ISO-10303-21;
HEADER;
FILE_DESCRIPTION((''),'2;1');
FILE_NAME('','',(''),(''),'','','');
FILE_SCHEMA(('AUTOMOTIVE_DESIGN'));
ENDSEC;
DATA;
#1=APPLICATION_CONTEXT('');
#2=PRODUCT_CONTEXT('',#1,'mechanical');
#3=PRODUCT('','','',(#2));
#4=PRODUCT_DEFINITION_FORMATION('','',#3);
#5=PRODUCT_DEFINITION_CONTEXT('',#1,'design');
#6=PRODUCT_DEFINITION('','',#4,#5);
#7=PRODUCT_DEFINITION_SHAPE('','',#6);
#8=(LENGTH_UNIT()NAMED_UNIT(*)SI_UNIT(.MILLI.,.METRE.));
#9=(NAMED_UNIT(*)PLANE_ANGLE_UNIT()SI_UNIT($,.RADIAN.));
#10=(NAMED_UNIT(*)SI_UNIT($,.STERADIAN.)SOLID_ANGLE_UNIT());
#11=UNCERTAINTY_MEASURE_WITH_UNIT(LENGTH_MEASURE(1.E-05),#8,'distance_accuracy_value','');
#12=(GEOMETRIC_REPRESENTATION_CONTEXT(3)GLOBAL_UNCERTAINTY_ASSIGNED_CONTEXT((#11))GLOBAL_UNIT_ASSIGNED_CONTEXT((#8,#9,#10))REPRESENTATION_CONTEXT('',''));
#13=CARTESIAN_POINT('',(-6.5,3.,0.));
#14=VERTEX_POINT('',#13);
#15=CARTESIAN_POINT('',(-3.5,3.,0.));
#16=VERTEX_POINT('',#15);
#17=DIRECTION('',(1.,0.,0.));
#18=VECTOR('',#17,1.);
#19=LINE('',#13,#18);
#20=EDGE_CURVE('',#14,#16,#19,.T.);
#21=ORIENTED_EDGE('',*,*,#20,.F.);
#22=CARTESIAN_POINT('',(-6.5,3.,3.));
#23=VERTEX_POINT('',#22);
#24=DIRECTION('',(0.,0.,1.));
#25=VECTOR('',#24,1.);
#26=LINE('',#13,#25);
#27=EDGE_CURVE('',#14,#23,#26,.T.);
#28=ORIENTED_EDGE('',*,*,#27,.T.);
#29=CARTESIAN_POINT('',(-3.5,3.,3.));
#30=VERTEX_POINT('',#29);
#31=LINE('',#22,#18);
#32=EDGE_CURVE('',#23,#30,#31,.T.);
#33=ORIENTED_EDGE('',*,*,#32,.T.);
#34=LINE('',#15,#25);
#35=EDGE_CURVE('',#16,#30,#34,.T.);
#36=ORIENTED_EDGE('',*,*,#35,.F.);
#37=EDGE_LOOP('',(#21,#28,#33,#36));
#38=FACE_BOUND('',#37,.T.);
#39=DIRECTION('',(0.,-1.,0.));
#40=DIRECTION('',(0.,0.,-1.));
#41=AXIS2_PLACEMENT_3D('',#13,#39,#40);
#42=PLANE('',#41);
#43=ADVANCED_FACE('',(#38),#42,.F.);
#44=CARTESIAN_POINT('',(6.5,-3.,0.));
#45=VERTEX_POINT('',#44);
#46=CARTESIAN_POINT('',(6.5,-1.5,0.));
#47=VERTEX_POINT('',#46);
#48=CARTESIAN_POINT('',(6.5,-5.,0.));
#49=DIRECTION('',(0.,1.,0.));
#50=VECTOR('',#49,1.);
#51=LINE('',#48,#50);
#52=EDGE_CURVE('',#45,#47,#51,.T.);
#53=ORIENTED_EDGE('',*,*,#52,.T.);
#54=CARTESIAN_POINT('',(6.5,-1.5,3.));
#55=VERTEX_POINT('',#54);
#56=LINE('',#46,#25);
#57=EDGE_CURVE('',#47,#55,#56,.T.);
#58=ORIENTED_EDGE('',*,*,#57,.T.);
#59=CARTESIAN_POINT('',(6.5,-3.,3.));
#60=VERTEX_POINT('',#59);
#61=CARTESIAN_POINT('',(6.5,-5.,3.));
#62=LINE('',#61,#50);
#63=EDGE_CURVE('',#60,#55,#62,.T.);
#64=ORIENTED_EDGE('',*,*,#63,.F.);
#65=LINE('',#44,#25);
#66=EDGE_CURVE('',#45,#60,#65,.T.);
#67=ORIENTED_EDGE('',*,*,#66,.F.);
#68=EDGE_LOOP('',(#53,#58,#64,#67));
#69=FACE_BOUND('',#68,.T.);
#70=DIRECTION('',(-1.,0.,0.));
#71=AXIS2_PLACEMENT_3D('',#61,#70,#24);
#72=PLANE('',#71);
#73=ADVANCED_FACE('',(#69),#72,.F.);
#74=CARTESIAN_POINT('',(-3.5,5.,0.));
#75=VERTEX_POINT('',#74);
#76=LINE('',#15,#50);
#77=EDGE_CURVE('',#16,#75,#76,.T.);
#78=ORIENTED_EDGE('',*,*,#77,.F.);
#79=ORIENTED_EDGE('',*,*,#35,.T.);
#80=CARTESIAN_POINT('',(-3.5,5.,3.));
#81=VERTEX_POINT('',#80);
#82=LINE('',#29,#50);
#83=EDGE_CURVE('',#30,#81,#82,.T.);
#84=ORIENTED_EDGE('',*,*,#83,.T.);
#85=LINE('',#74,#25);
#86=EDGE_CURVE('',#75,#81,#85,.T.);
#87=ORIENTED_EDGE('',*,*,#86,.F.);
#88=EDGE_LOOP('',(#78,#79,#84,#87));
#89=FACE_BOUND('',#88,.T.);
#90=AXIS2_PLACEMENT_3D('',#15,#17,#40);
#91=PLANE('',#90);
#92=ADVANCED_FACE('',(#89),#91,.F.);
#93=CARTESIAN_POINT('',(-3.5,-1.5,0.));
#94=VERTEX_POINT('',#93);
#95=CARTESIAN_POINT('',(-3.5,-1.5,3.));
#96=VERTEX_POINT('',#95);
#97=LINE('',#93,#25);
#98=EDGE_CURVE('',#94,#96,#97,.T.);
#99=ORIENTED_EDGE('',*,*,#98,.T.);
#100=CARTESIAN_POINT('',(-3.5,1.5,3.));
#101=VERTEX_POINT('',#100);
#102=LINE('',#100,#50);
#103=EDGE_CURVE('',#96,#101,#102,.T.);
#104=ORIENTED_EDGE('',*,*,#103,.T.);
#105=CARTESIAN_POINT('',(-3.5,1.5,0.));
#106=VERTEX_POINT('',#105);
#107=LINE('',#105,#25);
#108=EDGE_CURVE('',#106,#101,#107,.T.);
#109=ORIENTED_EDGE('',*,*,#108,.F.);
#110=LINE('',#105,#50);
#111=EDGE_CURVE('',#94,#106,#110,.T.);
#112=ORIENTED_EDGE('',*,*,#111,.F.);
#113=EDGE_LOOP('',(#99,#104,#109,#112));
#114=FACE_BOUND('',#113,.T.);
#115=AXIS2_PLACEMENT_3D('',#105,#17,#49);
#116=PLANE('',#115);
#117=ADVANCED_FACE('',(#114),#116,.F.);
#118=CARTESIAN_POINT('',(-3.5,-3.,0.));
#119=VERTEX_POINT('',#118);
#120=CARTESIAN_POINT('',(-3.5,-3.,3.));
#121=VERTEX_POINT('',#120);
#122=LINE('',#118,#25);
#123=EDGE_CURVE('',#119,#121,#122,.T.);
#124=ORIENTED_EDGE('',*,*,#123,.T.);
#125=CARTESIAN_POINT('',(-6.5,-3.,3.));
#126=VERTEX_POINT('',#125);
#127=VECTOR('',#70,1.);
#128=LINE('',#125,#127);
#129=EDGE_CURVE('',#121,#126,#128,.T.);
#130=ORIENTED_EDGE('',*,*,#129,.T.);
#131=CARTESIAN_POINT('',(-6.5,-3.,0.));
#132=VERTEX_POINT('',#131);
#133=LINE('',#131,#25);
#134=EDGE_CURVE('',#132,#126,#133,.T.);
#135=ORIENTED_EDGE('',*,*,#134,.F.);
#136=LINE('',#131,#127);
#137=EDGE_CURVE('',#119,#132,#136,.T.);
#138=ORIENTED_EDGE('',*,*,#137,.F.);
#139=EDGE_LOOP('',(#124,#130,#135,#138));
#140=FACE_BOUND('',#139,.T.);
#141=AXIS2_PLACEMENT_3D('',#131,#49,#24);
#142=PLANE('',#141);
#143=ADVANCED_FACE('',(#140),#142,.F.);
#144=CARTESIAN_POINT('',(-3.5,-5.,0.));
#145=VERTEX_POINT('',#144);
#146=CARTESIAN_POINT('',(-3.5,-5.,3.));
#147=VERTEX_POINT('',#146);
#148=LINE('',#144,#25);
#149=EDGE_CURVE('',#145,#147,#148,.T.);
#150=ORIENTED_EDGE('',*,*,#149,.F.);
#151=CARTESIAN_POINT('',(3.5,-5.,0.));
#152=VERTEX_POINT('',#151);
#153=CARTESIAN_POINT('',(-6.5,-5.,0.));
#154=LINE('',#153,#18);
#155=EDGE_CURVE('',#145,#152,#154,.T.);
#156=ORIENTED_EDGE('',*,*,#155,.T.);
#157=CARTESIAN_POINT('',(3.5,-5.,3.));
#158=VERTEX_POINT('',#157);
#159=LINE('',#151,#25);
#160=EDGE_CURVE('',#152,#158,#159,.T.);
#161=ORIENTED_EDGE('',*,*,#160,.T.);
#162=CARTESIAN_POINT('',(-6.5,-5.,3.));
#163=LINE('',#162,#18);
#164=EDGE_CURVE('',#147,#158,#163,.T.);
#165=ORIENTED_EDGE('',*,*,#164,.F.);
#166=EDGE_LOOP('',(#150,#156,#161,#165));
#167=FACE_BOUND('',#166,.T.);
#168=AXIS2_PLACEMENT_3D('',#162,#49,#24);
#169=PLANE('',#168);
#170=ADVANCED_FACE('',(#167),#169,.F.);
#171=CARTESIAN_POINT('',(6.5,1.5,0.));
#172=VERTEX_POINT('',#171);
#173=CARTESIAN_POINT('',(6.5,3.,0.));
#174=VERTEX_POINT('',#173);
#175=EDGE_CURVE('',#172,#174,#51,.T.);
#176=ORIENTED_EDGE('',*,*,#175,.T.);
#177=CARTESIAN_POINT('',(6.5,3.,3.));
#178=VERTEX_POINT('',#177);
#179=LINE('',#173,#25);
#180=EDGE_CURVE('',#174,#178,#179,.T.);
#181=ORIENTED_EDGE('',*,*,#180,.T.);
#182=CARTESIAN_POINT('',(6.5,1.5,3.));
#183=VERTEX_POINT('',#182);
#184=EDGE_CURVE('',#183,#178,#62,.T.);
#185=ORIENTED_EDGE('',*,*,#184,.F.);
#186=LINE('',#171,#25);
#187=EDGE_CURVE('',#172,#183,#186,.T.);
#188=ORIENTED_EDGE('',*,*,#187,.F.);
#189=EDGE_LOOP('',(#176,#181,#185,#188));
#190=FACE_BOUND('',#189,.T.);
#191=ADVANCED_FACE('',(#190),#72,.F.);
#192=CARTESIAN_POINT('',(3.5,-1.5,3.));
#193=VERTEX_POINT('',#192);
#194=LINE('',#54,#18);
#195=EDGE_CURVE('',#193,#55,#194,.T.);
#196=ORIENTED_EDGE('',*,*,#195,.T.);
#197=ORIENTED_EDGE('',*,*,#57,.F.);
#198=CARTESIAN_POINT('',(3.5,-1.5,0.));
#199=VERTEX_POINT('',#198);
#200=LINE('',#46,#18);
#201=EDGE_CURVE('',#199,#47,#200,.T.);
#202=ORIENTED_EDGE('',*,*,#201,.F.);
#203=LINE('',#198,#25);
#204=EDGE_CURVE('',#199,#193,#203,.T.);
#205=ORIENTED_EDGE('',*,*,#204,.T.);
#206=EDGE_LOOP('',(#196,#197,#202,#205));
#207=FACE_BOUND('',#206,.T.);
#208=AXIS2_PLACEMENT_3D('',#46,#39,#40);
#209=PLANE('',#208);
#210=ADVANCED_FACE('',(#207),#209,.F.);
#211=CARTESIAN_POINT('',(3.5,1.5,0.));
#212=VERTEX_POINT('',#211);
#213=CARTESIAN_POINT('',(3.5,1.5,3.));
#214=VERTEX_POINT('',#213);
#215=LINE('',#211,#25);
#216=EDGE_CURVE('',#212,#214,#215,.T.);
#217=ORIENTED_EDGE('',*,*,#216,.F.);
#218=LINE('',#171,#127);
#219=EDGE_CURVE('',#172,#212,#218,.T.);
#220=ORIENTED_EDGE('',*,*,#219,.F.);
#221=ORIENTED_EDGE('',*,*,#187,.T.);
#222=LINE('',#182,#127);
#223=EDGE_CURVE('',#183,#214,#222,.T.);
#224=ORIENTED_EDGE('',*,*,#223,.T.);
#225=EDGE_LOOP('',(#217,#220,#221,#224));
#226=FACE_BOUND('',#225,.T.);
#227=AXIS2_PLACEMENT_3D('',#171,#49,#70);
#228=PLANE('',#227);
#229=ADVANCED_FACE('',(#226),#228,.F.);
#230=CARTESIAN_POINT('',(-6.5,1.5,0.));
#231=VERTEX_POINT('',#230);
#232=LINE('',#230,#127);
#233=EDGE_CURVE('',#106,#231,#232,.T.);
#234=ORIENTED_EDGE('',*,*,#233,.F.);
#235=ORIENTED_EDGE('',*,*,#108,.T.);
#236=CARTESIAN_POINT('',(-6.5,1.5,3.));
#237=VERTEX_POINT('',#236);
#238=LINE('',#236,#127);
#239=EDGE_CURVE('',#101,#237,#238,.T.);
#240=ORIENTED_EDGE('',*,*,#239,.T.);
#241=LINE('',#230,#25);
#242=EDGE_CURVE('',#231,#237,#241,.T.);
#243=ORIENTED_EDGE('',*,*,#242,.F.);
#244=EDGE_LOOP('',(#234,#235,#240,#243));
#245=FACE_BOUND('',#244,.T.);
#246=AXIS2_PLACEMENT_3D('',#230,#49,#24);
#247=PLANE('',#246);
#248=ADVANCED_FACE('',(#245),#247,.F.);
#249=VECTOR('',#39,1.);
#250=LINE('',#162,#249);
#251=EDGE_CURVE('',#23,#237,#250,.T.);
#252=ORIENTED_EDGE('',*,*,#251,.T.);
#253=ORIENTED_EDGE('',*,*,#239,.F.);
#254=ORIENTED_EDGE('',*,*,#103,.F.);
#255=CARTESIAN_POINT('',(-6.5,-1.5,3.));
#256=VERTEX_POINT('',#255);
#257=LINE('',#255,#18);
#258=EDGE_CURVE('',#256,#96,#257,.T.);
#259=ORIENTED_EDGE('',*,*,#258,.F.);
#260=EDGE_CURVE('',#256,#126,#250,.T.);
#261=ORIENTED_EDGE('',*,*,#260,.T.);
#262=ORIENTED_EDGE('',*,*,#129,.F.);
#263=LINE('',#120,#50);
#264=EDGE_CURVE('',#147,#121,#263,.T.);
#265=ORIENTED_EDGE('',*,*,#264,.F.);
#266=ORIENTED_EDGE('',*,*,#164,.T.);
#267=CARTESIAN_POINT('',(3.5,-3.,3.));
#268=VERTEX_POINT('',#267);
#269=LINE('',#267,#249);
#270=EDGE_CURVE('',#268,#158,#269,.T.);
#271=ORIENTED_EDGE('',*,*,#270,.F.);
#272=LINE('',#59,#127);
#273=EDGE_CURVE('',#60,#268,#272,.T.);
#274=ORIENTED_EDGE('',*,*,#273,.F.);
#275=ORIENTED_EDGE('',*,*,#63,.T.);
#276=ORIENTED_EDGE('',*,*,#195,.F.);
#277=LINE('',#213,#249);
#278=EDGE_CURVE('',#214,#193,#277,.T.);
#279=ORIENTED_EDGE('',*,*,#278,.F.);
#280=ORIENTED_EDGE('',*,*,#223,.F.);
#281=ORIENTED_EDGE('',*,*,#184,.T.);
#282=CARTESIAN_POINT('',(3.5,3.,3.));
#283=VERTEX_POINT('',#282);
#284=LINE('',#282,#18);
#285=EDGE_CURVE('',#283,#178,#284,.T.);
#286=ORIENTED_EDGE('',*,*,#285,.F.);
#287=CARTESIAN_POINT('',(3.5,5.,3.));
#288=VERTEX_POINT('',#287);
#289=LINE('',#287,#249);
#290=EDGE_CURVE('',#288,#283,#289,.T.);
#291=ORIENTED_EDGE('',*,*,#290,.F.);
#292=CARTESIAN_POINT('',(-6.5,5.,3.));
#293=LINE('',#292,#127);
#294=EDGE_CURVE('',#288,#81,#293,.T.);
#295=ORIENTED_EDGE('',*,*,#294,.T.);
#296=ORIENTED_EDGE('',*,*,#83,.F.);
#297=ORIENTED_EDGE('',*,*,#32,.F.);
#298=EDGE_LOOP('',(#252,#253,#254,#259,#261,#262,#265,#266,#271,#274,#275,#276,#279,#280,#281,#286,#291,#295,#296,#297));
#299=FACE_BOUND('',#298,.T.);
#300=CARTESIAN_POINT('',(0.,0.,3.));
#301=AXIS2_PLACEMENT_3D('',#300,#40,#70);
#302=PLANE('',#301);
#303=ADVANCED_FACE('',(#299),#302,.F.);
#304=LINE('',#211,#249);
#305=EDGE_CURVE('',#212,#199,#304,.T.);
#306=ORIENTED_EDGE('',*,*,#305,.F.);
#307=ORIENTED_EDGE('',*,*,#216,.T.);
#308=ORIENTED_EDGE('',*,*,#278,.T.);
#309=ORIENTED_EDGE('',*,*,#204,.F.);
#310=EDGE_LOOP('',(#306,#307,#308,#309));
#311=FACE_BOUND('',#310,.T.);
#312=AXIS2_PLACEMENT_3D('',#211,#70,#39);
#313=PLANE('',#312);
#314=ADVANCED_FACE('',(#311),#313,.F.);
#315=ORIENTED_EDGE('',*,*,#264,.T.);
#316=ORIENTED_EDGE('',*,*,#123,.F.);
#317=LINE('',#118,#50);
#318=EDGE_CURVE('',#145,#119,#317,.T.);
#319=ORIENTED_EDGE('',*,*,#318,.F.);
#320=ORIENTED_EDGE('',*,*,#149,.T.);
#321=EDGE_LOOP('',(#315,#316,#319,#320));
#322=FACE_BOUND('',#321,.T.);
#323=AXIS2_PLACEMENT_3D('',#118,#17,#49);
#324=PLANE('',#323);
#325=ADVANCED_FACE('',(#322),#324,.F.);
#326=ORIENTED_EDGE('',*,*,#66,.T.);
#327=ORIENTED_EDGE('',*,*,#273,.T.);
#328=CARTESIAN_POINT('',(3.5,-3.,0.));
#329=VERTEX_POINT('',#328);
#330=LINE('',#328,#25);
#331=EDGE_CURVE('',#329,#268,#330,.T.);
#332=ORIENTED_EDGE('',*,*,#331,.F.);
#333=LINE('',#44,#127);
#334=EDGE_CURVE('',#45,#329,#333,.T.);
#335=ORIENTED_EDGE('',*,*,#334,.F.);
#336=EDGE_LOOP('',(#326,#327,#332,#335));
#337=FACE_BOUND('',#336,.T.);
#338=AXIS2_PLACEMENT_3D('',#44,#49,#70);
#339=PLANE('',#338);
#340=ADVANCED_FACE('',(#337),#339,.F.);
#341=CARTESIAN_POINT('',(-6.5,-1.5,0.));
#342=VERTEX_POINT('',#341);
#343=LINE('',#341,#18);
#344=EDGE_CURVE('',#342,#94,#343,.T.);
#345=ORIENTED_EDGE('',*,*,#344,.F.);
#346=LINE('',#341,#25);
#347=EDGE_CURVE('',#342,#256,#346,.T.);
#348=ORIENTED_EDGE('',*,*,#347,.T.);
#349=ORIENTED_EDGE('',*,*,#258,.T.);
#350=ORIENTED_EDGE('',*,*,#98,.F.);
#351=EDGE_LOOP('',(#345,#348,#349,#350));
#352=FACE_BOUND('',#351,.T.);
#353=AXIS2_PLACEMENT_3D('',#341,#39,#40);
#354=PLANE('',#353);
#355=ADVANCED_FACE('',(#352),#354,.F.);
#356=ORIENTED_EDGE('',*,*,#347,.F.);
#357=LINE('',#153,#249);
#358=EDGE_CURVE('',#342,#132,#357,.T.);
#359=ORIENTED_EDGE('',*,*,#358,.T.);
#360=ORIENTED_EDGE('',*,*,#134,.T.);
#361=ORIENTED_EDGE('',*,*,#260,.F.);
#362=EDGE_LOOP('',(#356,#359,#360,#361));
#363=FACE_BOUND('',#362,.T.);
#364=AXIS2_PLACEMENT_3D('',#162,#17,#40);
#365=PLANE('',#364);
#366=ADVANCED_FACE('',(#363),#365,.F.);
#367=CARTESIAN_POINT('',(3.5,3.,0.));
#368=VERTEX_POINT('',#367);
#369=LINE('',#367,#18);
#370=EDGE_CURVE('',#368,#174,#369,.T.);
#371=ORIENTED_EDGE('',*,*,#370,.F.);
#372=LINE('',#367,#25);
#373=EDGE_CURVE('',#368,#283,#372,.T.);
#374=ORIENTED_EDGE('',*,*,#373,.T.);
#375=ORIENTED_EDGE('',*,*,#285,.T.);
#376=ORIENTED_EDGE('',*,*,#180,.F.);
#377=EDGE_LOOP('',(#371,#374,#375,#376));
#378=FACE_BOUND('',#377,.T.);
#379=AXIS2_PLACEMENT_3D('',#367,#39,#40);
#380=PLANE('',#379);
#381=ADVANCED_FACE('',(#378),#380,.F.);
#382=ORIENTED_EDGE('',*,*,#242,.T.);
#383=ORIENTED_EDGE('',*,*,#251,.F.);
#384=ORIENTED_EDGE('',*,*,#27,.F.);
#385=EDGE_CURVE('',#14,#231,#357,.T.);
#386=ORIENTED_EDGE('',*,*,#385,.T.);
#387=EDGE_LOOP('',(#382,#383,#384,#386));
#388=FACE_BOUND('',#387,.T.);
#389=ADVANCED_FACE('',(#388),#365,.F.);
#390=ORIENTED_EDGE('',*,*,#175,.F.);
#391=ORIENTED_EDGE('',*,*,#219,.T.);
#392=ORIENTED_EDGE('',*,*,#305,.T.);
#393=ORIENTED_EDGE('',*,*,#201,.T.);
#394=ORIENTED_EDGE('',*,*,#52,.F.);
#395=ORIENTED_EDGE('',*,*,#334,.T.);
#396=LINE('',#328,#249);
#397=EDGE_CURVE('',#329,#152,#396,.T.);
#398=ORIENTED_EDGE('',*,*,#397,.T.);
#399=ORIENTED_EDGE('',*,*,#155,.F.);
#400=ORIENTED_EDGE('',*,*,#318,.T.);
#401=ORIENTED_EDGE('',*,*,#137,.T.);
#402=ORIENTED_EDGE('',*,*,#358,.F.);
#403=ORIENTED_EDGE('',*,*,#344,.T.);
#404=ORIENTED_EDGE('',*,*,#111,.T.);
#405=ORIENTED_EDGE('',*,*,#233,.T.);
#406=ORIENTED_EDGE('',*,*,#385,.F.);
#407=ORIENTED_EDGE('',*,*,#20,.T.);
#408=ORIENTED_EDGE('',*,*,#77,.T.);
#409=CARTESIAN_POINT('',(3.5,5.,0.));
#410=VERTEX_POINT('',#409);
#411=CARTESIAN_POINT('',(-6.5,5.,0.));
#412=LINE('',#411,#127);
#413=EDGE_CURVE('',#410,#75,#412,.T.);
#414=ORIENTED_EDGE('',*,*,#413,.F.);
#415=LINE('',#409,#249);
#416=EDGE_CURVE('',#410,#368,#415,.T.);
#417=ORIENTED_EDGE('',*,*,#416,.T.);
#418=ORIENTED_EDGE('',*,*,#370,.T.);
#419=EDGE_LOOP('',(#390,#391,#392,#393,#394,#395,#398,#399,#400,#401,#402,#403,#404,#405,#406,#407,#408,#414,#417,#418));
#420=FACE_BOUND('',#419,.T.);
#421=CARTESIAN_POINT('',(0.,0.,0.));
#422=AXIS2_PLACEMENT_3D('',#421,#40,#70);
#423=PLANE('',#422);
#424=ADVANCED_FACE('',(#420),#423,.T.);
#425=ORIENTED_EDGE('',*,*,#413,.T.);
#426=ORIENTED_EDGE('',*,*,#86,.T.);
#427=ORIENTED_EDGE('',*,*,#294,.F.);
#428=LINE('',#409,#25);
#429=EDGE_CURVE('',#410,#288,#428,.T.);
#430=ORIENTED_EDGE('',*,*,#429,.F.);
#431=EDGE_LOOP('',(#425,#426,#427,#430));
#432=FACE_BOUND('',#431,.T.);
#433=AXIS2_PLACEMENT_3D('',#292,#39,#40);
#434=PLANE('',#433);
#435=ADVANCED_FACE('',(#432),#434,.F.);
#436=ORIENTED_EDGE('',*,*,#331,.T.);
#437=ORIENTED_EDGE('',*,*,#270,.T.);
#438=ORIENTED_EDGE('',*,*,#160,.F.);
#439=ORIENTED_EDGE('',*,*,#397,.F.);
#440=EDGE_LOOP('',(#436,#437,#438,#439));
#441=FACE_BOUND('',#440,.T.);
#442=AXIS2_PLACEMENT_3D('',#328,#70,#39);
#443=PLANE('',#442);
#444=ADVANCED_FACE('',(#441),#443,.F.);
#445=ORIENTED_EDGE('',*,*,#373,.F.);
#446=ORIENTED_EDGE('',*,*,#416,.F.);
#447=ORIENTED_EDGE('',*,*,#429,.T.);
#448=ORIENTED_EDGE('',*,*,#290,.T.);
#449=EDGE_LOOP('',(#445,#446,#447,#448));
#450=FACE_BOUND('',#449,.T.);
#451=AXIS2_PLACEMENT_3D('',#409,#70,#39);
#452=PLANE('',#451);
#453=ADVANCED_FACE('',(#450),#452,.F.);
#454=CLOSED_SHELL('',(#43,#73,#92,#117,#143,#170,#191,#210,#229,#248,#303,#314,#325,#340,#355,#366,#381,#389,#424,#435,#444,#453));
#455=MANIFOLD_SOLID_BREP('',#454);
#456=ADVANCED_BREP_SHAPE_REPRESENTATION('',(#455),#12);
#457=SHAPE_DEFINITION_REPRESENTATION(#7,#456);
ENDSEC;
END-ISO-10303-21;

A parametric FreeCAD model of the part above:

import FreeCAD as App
import Part
import Sketcher
from FreeCAD import Vector


def add_polygon(sketch, points):
    """Adds a closed chain of lines whose ends are joined by coincident constraints."""
    first, n = sketch.GeometryCount, len(points)
    for a, b in zip(points, points[1:] + points[:1]):
        sketch.addGeometry(Part.LineSegment(App.Vector(*a, 0), App.Vector(*b, 0)), False)
    for i in range(n):
        sketch.addConstraint(Sketcher.Constraint("Coincident", first + i, 2, first + (i + 1) % n, 1))

doc = App.newDocument("Part")
body = doc.addObject("PartDesign::Body", "Body")

sketch1 = doc.addObject("Sketcher::SketchObject", "Sketch")
body.addObject(sketch1)
sketch1.AttachmentSupport = (doc.XY_Plane, [""])
sketch1.MapMode = "FlatFace"
add_polygon(sketch1, [(-6, 5), (-6, -5), (6, -5), (6, 5)])
sketch1.addConstraint(Sketcher.Constraint("Vertical", 0))
sketch1.addConstraint(Sketcher.Constraint("Horizontal", 1))
sketch1.addConstraint(Sketcher.Constraint("Vertical", 2))
sketch1.addConstraint(Sketcher.Constraint("Horizontal", 3))
sketch1.addConstraint(Sketcher.Constraint("Symmetric", 0, 2, 2, 2, -1, 1))
sketch1.addConstraint(Sketcher.Constraint("DistanceX", 1, 1, 1, 2, 13.0))
sketch1.addConstraint(Sketcher.Constraint("DistanceY", 0, 2, 0, 1, 10.0))
pad1 = doc.addObject("PartDesign::Pad", "Pad")
body.addObject(pad1)
pad1.Profile = sketch1
pad1.Length = 3

sketch2 = doc.addObject("Sketcher::SketchObject", "Sketch001")
body.addObject(sketch2)
sketch2.AttachmentSupport = (doc.XY_Plane, [""])
sketch2.MapMode = "FlatFace"
sketch2.AttachmentOffset = App.Placement(Vector(0, 0, 3), App.Rotation())
add_polygon(sketch2, [(-6.5, 5), (-6.5, 3), (-3.5, 3), (-3.5, 5)])
add_polygon(sketch2, [(-6.5, 1.5), (-6.5, -1.5), (-3.5, -1.5), (-3.5, 1.5)])
add_polygon(sketch2, [(-6.5, -3), (-6.5, -5), (-3.5, -5), (-3.5, -3)])
sketch2.addConstraint(Sketcher.Constraint("Vertical", 0))
sketch2.addConstraint(Sketcher.Constraint("Horizontal", 1))
sketch2.addConstraint(Sketcher.Constraint("Vertical", 2))
sketch2.addConstraint(Sketcher.Constraint("Horizontal", 3))
sketch2.addConstraint(Sketcher.Constraint("Vertical", 4))
sketch2.addConstraint(Sketcher.Constraint("Horizontal", 5))
sketch2.addConstraint(Sketcher.Constraint("Vertical", 6))
sketch2.addConstraint(Sketcher.Constraint("Horizontal", 7))
sketch2.addConstraint(Sketcher.Constraint("Vertical", 8))
sketch2.addConstraint(Sketcher.Constraint("Horizontal", 9))
sketch2.addConstraint(Sketcher.Constraint("Vertical", 10))
sketch2.addConstraint(Sketcher.Constraint("Horizontal", 11))
sketch2.addConstraint(Sketcher.Constraint("Symmetric", 3, 2, 8, 2, -1))
sketch2.addConstraint(Sketcher.Constraint("Symmetric", 1, 2, 10, 2, -1))
sketch2.addConstraint(Sketcher.Constraint("Vertical", 3, 2, 4, 2))
sketch2.addConstraint(Sketcher.Constraint("Vertical", 2, 2, 5, 2))
sketch2.addConstraint(Sketcher.Constraint("Equal", 11, 4))
sketch2.addConstraint(Sketcher.Constraint("DistanceX", 1, 1, 1, 2, 3.0))
sketch2.addConstraint(Sketcher.Constraint("DistanceY", 0, 2, 0, 1, 2.0))
sketch2.addConstraint(Sketcher.Constraint("DistanceY", -1, 1, 0, 2, 3.0))
sketch2.addConstraint(Sketcher.Constraint("DistanceX", 0, 2, -1, 1, 6.5))
sketch2.addConstraint(Sketcher.Constraint("DistanceY", 4, 2, -1, 1, 1.5))
pocket1 = doc.addObject("PartDesign::Pocket", "Pocket")
body.addObject(pocket1)
pocket1.Profile = sketch2
pocket1.Length = 3

sketch3 = doc.addObject("Sketcher::SketchObject", "Sketch002")
body.addObject(sketch3)
sketch3.AttachmentSupport = (doc.XY_Plane, [""])
sketch3.MapMode = "FlatFace"
sketch3.AttachmentOffset = App.Placement(Vector(0, 0, 3), App.Rotation())
add_polygon(sketch3, [(3.5, 5), (3.5, 3), (6.5, 3), (6.5, 5)])
add_polygon(sketch3, [(3.5, 1.5), (3.5, -1.5), (6.5, -1.5), (6.5, 1.5)])
add_polygon(sketch3, [(3.5, -3), (3.5, -5), (6.5, -5), (6.5, -3)])
sketch3.addConstraint(Sketcher.Constraint("Vertical", 0))
sketch3.addConstraint(Sketcher.Constraint("Horizontal", 1))
sketch3.addConstraint(Sketcher.Constraint("Vertical", 2))
sketch3.addConstraint(Sketcher.Constraint("Horizontal", 3))
sketch3.addConstraint(Sketcher.Constraint("Vertical", 4))
sketch3.addConstraint(Sketcher.Constraint("Horizontal", 5))
sketch3.addConstraint(Sketcher.Constraint("Vertical", 6))
sketch3.addConstraint(Sketcher.Constraint("Horizontal", 7))
sketch3.addConstraint(Sketcher.Constraint("Vertical", 8))
sketch3.addConstraint(Sketcher.Constraint("Horizontal", 9))
sketch3.addConstraint(Sketcher.Constraint("Vertical", 10))
sketch3.addConstraint(Sketcher.Constraint("Horizontal", 11))
sketch3.addConstraint(Sketcher.Constraint("Symmetric", 3, 2, 8, 2, -1))
sketch3.addConstraint(Sketcher.Constraint("Symmetric", 1, 2, 10, 2, -1))
sketch3.addConstraint(Sketcher.Constraint("Vertical", 3, 2, 4, 2))
sketch3.addConstraint(Sketcher.Constraint("Vertical", 2, 2, 5, 2))
sketch3.addConstraint(Sketcher.Constraint("Equal", 11, 4))
sketch3.addConstraint(Sketcher.Constraint("DistanceX", 1, 1, 1, 2, 3.0))
sketch3.addConstraint(Sketcher.Constraint("DistanceY", 0, 2, 0, 1, 2.0))
sketch3.addConstraint(Sketcher.Constraint("DistanceY", -1, 1, 0, 2, 3.0))
sketch3.addConstraint(Sketcher.Constraint("DistanceX", -1, 1, 0, 2, 3.5))
sketch3.addConstraint(Sketcher.Constraint("DistanceY", 4, 2, -1, 1, 1.5))
pocket2 = doc.addObject("PartDesign::Pocket", "Pocket001")
body.addObject(pocket2)
pocket2.Profile = sketch3
pocket2.Length = 3

doc.recompute()
